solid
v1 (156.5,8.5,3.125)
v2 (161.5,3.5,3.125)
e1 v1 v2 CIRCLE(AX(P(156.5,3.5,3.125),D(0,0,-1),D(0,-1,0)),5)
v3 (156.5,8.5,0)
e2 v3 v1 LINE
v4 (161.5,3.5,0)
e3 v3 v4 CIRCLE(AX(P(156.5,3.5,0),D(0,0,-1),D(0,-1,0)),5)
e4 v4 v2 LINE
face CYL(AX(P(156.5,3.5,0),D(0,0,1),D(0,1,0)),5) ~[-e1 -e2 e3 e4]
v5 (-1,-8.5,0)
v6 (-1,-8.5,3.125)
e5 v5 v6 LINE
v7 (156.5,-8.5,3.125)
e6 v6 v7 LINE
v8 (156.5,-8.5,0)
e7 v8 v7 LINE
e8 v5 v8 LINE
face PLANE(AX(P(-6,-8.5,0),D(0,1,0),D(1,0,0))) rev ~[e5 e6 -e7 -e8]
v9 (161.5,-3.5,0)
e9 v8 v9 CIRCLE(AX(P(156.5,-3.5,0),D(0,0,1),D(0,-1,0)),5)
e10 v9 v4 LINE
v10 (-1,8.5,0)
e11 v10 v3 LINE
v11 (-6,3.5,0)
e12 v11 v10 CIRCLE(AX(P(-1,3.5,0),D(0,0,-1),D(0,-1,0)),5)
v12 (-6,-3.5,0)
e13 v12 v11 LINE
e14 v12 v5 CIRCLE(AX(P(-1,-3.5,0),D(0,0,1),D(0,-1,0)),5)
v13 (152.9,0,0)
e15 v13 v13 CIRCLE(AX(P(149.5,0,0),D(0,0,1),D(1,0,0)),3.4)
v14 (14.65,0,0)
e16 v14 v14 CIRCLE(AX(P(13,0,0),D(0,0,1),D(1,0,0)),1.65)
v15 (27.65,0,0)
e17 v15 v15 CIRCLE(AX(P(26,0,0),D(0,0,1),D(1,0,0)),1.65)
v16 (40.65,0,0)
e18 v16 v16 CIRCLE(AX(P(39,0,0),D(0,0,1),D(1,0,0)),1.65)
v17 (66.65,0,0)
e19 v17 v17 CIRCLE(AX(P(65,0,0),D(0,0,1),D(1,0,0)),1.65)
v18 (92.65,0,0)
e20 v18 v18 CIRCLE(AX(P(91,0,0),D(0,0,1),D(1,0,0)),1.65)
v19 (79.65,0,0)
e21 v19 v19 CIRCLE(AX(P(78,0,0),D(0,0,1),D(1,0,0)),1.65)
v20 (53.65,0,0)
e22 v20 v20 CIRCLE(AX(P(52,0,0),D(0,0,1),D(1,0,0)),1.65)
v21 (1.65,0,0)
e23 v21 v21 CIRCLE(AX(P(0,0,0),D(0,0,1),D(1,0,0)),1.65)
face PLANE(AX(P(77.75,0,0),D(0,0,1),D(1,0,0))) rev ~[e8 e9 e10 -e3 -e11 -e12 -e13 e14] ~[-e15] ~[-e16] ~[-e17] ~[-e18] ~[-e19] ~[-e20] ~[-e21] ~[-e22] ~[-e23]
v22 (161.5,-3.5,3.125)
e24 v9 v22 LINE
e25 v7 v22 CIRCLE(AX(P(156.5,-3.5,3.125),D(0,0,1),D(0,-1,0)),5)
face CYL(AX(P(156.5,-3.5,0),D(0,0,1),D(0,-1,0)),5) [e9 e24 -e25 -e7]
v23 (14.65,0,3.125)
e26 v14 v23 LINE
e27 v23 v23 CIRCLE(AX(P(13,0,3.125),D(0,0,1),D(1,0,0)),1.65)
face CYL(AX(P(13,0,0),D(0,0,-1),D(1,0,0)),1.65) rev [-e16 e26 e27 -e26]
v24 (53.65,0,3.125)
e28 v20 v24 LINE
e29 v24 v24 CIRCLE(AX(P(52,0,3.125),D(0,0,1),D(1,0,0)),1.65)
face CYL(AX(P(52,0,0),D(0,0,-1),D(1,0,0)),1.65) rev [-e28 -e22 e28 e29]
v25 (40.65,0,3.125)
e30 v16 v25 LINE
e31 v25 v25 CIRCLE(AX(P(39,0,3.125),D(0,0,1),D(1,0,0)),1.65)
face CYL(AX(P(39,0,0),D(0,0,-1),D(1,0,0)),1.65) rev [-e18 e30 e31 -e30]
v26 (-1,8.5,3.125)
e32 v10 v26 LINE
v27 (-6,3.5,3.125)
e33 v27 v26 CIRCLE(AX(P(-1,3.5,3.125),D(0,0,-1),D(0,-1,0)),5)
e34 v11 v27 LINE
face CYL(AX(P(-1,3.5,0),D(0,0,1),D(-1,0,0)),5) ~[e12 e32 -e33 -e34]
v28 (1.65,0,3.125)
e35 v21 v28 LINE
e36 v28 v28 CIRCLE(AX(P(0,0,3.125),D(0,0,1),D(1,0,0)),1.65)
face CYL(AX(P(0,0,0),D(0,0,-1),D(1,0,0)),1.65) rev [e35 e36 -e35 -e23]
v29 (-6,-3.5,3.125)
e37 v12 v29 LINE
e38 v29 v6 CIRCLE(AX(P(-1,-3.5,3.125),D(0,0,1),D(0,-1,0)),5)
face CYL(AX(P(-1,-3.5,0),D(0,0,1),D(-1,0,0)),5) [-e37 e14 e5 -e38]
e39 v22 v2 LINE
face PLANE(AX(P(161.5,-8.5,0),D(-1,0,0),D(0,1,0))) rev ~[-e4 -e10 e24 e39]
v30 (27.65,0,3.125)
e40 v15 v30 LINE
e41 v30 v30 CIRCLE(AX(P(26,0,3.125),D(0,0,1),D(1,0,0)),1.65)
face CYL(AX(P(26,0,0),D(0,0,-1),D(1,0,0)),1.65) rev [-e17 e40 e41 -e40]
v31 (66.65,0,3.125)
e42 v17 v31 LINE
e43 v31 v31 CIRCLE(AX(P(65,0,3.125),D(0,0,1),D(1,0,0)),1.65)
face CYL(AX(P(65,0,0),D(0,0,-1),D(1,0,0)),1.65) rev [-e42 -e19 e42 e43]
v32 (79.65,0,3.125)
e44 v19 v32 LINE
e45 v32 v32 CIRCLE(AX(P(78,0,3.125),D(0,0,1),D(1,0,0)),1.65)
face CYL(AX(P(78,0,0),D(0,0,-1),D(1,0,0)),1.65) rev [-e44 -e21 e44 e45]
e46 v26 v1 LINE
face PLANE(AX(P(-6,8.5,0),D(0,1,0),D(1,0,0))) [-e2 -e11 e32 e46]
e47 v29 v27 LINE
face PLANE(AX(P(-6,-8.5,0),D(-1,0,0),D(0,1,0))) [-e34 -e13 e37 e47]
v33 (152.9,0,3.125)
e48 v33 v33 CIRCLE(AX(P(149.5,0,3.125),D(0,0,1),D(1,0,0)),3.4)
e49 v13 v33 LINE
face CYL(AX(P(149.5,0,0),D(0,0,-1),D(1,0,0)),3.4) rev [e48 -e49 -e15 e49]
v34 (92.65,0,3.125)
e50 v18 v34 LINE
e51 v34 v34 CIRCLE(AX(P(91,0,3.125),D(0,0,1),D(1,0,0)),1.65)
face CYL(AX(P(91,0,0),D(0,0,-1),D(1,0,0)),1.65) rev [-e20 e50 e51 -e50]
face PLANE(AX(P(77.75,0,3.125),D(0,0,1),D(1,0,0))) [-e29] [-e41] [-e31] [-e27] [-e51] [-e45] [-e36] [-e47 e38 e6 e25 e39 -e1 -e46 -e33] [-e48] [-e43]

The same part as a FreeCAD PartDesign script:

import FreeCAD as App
import Part
import Sketcher
from FreeCAD import Vector


def edges_at(feature, points):
    """Names of the edges that pass closest to the given points."""
    edges = feature.Shape.Edges
    near = lambda p: min(range(len(edges)), key=lambda i: edges[i].distToShape(Part.Vertex(*p))[0])
    return sorted({f"Edge{near(p) + 1}" for p in points})


def add_polygon(sketch, points):
    """Adds a closed chain of lines whose ends are joined by coincident constraints."""
    first, n = sketch.GeometryCount, len(points)
    for a, b in zip(points, points[1:] + points[:1]):
        sketch.addGeometry(Part.LineSegment(App.Vector(*a, 0), App.Vector(*b, 0)), False)
    for i in range(n):
        sketch.addConstraint(Sketcher.Constraint("Coincident", first + i, 2, first + (i + 1) % n, 1))

doc = App.newDocument("Part")
body = doc.addObject("PartDesign::Body", "Body")

sketch1 = doc.addObject("Sketcher::SketchObject", "Sketch")
body.addObject(sketch1)
sketch1.AttachmentSupport = (doc.XY_Plane, [""])
sketch1.MapMode = "FlatFace"
add_polygon(sketch1, [(-6, 8.5), (-6, -8.5), (161.5, -8.5), (161.5, 8.5)])
sketch1.addGeometry(Part.Circle(Vector(0, 0, 0), Vector(0, 0, 1), 1.65), False)
sketch1.addGeometry(Part.Circle(Vector(13, 0, 0), Vector(0, 0, 1), 1.65), False)
sketch1.addGeometry(Part.Circle(Vector(26, 0, 0), Vector(0, 0, 1), 1.65), False)
sketch1.addGeometry(Part.Circle(Vector(39, 0, 0), Vector(0, 0, 1), 1.65), False)
sketch1.addGeometry(Part.Circle(Vector(52, 0, 0), Vector(0, 0, 1), 1.65), False)
sketch1.addGeometry(Part.Circle(Vector(65, 0, 0), Vector(0, 0, 1), 1.65), False)
sketch1.addGeometry(Part.Circle(Vector(78, 0, 0), Vector(0, 0, 1), 1.65), False)
sketch1.addGeometry(Part.Circle(Vector(91, 0, 0), Vector(0, 0, 1), 1.65), False)
sketch1.addGeometry(Part.Circle(Vector(149.5, 0, 0), Vector(0, 0, 1), 3.4), False)
sketch1.addConstraint(Sketcher.Constraint("Vertical", 0))
sketch1.addConstraint(Sketcher.Constraint("Horizontal", 1))
sketch1.addConstraint(Sketcher.Constraint("Vertical", 2))
sketch1.addConstraint(Sketcher.Constraint("Horizontal", 3))
sketch1.addConstraint(Sketcher.Constraint("Coincident", 4, 3, -1, 1))
sketch1.addConstraint(Sketcher.Constraint("Equal", 4, 5))
sketch1.addConstraint(Sketcher.Constraint("Equal", 5, 6))
sketch1.addConstraint(Sketcher.Constraint("Equal", 6, 7))
sketch1.addConstraint(Sketcher.Constraint("Equal", 7, 8))
sketch1.addConstraint(Sketcher.Constraint("Equal", 8, 9))
sketch1.addConstraint(Sketcher.Constraint("Equal", 9, 10))
sketch1.addConstraint(Sketcher.Constraint("Equal", 10, 11))
sketch1.addConstraint(Sketcher.Constraint("PointOnObject", 5, 3, -1))
sketch1.addConstraint(Sketcher.Constraint("PointOnObject", 6, 3, -1))
sketch1.addConstraint(Sketcher.Constraint("PointOnObject", 7, 3, -1))
sketch1.addConstraint(Sketcher.Constraint("PointOnObject", 8, 3, -1))
sketch1.addConstraint(Sketcher.Constraint("PointOnObject", 9, 3, -1))
sketch1.addConstraint(Sketcher.Constraint("PointOnObject", 10, 3, -1))
sketch1.addConstraint(Sketcher.Constraint("PointOnObject", 11, 3, -1))
sketch1.addConstraint(Sketcher.Constraint("PointOnObject", 12, 3, -1))
sketch1.addConstraint(Sketcher.Constraint("Diameter", 4, 3.3))
sketch1.addConstraint(Sketcher.Constraint("Diameter", 12, 6.8))
sketch1.addConstraint(Sketcher.Constraint("DistanceY", 0, 2, 0, 1, 17.0))
sketch1.addConstraint(Sketcher.Constraint("DistanceX", 1, 1, 1, 2, 167.5))
sketch1.addConstraint(Sketcher.Constraint("DistanceX", -1, 1, 5, 3, 13.0))
sketch1.addConstraint(Sketcher.Constraint("DistanceX", -1, 1, 6, 3, 26.0))
sketch1.addConstraint(Sketcher.Constraint("DistanceX", -1, 1, 7, 3, 39.0))
sketch1.addConstraint(Sketcher.Constraint("DistanceX", -1, 1, 8, 3, 52.0))
sketch1.addConstraint(Sketcher.Constraint("DistanceX", -1, 1, 9, 3, 65.0))
sketch1.addConstraint(Sketcher.Constraint("DistanceX", -1, 1, 10, 3, 78.0))
sketch1.addConstraint(Sketcher.Constraint("DistanceX", -1, 1, 11, 3, 91.0))
sketch1.addConstraint(Sketcher.Constraint("DistanceX", 0, 2, -1, 1, 6.0))
sketch1.addConstraint(Sketcher.Constraint("DistanceX", 12, 3, 1, 2, 12.0))
sketch1.addConstraint(Sketcher.Constraint("DistanceY", 0, 2, -1, 1, 8.5))
pad1 = doc.addObject("PartDesign::Pad", "Pad")
body.addObject(pad1)
pad1.Profile = sketch1
pad1.Length = 3.125
doc.recompute()

fillet = doc.addObject("PartDesign::Fillet", "Fillet")
body.addObject(fillet)
fillet.Base = (pad1, edges_at(pad1, [
    (-6, -8.5, 1.562),
    (161.5, -8.5, 1.562),
    (161.5, 8.5, 1.562),
    (-6, 8.5, 1.562),
]))
fillet.Radius = 5

doc.recompute()
